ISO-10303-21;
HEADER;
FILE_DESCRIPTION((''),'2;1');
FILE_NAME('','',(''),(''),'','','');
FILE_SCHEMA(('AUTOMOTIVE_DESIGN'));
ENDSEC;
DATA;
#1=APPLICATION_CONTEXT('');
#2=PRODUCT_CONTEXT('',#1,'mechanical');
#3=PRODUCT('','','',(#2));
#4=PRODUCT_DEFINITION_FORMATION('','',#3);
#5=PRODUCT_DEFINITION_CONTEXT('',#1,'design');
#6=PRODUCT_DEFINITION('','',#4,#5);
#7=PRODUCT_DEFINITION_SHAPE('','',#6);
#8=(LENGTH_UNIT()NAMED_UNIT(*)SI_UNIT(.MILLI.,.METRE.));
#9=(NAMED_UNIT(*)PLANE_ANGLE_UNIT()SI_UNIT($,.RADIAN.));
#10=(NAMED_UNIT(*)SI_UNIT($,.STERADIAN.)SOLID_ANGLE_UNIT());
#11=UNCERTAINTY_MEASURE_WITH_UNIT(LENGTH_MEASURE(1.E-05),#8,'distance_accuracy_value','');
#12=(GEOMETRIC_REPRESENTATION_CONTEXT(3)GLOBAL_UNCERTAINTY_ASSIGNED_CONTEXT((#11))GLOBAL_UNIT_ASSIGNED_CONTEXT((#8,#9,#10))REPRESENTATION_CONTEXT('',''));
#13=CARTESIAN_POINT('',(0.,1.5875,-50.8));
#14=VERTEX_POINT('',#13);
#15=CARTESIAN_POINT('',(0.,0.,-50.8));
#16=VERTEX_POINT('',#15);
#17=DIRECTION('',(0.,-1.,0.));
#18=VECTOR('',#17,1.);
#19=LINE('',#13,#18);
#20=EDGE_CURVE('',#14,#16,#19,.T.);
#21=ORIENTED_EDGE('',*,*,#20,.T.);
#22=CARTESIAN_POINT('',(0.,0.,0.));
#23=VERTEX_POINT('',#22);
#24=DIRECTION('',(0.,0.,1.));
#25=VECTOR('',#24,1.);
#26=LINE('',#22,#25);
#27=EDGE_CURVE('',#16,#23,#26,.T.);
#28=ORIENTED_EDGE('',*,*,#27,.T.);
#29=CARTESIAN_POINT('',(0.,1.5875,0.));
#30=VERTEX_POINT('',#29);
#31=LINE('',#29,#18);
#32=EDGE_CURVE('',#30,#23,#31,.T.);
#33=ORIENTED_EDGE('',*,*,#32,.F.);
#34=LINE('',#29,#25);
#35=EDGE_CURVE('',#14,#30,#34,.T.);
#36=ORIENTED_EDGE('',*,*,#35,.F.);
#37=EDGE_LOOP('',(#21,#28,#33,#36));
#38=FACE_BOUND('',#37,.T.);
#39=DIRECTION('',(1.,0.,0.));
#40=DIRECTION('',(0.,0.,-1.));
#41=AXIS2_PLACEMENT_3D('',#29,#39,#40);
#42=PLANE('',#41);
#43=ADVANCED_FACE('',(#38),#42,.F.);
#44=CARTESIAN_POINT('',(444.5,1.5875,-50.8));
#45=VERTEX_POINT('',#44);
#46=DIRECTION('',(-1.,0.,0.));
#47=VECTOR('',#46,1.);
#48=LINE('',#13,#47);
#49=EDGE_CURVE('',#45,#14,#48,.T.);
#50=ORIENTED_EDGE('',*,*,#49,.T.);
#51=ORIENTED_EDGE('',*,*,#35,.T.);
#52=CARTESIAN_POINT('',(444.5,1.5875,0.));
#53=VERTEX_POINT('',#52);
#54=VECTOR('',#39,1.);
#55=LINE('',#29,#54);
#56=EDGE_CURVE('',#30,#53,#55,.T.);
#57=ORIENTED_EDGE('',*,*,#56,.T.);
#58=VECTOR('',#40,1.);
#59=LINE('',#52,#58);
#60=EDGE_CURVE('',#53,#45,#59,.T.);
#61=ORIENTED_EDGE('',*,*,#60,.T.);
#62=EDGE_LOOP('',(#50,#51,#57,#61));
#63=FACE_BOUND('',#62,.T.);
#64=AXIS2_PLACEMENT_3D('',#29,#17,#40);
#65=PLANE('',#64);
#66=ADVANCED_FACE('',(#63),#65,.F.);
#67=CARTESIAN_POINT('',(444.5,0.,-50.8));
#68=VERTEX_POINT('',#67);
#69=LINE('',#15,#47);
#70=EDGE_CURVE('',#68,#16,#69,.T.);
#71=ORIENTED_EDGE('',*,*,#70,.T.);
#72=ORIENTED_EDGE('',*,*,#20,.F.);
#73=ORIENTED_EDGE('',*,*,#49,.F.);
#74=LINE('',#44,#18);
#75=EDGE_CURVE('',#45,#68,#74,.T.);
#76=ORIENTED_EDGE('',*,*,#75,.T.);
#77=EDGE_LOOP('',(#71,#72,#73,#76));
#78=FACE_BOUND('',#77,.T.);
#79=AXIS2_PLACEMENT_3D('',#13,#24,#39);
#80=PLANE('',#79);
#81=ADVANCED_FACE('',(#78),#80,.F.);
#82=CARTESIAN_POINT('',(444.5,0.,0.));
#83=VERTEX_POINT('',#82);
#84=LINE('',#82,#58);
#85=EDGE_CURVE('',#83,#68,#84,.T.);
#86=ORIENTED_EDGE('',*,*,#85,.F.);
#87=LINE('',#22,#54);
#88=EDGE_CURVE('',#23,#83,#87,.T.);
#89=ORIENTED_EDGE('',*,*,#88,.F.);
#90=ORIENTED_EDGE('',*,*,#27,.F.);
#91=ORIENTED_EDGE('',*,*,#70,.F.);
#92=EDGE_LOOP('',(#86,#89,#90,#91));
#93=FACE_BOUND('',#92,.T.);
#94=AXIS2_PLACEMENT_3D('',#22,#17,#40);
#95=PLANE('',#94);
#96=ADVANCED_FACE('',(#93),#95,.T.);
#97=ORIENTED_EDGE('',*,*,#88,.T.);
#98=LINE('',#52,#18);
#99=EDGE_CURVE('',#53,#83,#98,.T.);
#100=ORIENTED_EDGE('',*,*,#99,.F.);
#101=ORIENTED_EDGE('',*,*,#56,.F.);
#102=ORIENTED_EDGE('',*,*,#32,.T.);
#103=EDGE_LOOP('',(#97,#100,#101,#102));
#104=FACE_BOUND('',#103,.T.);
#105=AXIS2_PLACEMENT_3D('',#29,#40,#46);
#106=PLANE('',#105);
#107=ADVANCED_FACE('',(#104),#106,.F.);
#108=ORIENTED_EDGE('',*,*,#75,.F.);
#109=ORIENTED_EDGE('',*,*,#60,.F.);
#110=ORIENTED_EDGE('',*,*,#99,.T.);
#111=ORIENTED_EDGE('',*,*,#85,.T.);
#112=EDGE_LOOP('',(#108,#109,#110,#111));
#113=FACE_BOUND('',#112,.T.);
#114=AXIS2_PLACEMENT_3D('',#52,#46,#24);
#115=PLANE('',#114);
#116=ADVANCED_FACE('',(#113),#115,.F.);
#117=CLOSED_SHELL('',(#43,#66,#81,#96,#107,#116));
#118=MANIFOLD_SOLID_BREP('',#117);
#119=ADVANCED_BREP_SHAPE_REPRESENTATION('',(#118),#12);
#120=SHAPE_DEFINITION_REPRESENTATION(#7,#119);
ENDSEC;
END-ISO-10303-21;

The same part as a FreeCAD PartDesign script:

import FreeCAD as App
import Part
import Sketcher

V = App.Vector
Q = App.Units.Quantity


def add_polygon(sketch, points):
    """Adds a closed chain of lines whose ends are joined by coincident constraints."""
    first, n = sketch.GeometryCount, len(points)
    for a, b in zip(points, points[1:] + points[:1]):
        sketch.addGeometry(Part.LineSegment(App.Vector(*a, 0), App.Vector(*b, 0)), False)
    for i in range(n):
        sketch.addConstraint(Sketcher.Constraint("Coincident", first + i, 2, first + (i + 1) % n, 1))

doc = App.newDocument("Part")
body = doc.addObject("PartDesign::Body", "Body")

sketch1 = body.newObject("Sketcher::SketchObject", "Sketch")
sketch1.AttachmentSupport = (doc.getObject("XZ_Plane"), [""])
sketch1.MapMode = "FlatFace"
add_polygon(sketch1, [(0, -51), (0, 0), (444, 0), (444, -51)])
sketch1.addConstraint([
    Sketcher.Constraint("Vertical", 0),
    Sketcher.Constraint("Horizontal", 1),
    Sketcher.Constraint("Vertical", 2),
    Sketcher.Constraint("Horizontal", 3),
    Sketcher.Constraint("Coincident", 0, 2, -1, 1),
    Sketcher.Constraint("DistanceY", 0, 1, 0, 2, Q("2 in")),
    Sketcher.Constraint("DistanceX", 1, 1, 1, 2, Q("17.5 in")),
])
pad1 = body.newObject("PartDesign::Pad", "Pad")
pad1.Profile = sketch1
pad1.Length = Q("0.0625 in")
pad1.Reversed = True

doc.recompute()
